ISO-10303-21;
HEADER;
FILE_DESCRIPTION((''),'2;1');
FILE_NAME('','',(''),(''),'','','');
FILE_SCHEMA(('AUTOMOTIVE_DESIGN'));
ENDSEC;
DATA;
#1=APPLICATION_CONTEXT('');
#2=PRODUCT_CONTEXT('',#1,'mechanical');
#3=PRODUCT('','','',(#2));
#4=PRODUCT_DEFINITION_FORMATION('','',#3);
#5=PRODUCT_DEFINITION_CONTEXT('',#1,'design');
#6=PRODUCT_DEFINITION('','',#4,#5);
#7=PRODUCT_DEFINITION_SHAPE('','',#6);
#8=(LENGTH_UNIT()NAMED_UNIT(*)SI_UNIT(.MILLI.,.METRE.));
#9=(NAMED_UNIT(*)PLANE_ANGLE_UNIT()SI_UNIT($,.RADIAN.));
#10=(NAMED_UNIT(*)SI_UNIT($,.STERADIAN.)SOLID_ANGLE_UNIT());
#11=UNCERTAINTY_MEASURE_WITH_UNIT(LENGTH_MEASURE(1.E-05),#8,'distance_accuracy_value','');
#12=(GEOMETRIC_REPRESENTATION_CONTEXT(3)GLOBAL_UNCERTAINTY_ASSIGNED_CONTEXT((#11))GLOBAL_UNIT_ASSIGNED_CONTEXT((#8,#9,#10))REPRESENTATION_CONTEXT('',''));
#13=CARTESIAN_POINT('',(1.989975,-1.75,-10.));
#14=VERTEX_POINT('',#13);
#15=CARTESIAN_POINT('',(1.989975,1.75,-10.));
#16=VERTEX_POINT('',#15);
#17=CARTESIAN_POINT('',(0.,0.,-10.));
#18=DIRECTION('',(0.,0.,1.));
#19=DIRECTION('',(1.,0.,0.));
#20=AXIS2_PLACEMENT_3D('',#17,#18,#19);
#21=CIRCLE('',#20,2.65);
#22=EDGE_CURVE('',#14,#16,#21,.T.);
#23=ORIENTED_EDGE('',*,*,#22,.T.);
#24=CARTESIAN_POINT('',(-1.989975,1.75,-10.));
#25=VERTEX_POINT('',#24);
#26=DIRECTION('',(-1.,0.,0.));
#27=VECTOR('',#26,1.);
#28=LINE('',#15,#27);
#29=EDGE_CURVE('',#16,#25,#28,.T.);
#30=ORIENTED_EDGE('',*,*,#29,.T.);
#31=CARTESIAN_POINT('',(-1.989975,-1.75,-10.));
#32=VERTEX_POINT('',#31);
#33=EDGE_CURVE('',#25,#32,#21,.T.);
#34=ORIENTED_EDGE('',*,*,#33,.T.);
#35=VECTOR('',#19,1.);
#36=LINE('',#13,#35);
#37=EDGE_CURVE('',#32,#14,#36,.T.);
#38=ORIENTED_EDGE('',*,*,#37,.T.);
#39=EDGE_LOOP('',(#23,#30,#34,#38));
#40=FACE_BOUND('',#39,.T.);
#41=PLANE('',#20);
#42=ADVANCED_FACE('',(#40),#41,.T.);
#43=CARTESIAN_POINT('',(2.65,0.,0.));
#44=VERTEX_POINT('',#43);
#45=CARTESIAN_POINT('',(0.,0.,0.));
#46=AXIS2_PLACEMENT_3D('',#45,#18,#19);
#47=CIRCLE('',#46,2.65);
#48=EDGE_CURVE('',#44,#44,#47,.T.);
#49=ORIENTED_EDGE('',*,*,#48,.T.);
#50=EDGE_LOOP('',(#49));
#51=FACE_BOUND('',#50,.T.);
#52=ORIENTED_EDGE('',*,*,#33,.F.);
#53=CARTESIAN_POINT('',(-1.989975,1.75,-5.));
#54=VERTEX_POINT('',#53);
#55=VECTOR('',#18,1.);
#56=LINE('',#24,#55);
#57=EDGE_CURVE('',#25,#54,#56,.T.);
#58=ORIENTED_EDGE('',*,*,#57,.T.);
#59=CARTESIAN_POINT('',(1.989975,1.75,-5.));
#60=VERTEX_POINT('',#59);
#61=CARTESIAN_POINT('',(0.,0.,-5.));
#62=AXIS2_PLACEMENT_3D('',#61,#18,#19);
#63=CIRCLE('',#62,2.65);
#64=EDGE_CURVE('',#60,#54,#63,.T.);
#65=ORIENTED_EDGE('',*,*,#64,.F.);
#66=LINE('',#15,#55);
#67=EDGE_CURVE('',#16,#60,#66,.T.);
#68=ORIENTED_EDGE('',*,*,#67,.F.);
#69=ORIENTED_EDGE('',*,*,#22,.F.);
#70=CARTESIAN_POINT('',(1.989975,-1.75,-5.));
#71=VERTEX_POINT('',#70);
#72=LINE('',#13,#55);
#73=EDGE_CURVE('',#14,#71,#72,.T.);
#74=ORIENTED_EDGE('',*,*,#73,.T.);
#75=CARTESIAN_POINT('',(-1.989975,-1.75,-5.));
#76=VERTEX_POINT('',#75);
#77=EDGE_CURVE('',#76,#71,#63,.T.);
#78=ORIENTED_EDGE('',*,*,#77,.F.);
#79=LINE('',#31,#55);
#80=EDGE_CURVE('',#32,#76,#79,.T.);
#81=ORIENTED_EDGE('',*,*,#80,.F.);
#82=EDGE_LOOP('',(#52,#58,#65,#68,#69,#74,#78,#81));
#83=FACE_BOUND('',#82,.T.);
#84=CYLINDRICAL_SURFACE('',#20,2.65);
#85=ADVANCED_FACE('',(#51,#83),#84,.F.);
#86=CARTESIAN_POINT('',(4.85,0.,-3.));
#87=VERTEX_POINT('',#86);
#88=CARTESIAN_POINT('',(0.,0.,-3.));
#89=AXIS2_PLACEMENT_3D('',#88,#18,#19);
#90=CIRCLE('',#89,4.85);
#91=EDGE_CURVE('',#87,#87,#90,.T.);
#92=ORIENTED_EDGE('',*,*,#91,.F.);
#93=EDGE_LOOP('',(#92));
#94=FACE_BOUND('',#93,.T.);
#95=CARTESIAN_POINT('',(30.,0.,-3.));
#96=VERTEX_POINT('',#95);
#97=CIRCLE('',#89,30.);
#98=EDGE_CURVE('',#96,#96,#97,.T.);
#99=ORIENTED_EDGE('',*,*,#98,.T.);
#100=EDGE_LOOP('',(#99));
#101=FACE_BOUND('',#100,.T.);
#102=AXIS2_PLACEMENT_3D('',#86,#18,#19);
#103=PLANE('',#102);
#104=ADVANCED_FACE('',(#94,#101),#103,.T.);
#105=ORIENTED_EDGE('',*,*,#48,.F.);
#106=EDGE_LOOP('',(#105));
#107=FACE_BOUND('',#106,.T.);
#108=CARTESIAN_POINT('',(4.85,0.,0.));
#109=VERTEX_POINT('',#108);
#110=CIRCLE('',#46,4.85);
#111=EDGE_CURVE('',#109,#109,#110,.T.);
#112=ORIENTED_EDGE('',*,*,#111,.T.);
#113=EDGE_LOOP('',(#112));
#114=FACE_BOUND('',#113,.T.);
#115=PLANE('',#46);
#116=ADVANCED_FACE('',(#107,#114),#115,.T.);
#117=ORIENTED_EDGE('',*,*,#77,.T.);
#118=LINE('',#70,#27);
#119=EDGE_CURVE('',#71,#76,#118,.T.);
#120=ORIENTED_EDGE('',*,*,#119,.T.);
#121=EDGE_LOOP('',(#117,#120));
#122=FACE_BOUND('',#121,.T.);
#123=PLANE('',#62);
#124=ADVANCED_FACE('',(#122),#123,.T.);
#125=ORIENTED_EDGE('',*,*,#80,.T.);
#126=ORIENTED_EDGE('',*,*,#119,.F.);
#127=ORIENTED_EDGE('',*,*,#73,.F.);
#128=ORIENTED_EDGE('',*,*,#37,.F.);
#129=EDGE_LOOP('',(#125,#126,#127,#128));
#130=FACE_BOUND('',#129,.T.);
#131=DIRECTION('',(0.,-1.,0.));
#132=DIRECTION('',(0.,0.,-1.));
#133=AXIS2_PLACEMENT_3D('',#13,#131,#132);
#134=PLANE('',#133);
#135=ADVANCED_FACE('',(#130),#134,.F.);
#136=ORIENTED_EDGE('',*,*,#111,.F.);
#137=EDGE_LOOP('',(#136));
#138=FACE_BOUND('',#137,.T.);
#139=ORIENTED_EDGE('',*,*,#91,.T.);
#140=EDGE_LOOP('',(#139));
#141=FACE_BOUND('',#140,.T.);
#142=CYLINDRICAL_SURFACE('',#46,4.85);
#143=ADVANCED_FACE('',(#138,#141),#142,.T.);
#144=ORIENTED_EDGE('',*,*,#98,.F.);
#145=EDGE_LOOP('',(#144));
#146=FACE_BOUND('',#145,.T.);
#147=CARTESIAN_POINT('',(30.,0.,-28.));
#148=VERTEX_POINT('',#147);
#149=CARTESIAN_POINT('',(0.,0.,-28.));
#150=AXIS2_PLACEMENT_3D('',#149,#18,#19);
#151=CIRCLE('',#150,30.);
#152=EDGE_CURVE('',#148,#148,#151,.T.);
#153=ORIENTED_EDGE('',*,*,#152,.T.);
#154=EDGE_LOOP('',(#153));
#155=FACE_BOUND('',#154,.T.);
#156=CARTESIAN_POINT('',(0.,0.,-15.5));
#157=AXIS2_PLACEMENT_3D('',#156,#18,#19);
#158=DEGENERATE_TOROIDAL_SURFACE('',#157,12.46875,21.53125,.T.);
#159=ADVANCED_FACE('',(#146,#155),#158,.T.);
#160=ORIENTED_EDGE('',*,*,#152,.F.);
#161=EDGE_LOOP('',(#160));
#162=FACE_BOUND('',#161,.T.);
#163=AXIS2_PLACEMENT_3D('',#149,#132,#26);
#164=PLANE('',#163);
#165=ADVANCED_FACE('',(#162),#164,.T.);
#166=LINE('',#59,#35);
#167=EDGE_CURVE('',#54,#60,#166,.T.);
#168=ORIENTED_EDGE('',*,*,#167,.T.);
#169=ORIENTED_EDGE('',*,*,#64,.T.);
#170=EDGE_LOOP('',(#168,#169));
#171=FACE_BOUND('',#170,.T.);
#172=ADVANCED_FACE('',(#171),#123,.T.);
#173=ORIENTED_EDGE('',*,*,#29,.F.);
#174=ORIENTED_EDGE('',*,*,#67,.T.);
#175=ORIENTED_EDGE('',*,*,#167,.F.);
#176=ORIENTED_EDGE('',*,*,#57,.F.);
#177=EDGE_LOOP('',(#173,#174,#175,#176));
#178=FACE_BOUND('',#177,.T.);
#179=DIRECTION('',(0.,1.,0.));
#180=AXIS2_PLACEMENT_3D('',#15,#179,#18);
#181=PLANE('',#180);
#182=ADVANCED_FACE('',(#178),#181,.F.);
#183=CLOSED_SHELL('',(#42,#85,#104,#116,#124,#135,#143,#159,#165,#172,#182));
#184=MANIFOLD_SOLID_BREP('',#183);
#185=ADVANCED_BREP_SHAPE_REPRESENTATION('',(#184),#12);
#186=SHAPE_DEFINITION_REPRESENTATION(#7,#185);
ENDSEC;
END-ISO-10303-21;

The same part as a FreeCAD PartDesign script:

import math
import FreeCAD as App
import Part
import Sketcher
from FreeCAD import Vector

doc = App.newDocument("Part")
body = doc.addObject("PartDesign::Body", "Body")

# Sketch on XZ plane
sketch1 = body.newObject("Sketcher::SketchObject", "Sketch")
sketch1.AttachmentSupport = (doc.getObject("XZ_Plane"), [""])
sketch1.MapMode = "FlatFace"
sketch1.addGeometry(Part.LineSegment(Vector(0, -28, 0), Vector(0, 0, 0)), False)
sketch1.addGeometry(Part.LineSegment(Vector(0, 0, 0), Vector(4.8, 0, 0)), False)
sketch1.addGeometry(Part.LineSegment(Vector(4.8, 0, 0), Vector(4.8, -3, 0)), False)
sketch1.addGeometry(Part.LineSegment(Vector(4.8, -3, 0), Vector(30, -3, 0)), False)
sketch1.addGeometry(Part.ArcOfCircle(Part.Circle(Vector(12.5, -15.5, 0), Vector(0, 0, 1), 21.5), math.radians(-35), math.radians(35)), False)
sketch1.addGeometry(Part.LineSegment(Vector(30, -28, 0), Vector(0, -28, 0)), False)
sketch1.addConstraint(Sketcher.Constraint("Coincident", 0, 2, 1, 1))
sketch1.addConstraint(Sketcher.Constraint("Coincident", 1, 2, 2, 1))
sketch1.addConstraint(Sketcher.Constraint("Coincident", 2, 2, 3, 1))
sketch1.addConstraint(Sketcher.Constraint("Coincident", 3, 2, 4, 2))
sketch1.addConstraint(Sketcher.Constraint("Coincident", 4, 1, 5, 1))
sketch1.addConstraint(Sketcher.Constraint("Coincident", 5, 2, 0, 1))
sketch1.addConstraint(Sketcher.Constraint("Vertical", 0))
sketch1.addConstraint(Sketcher.Constraint("Horizontal", 1))
sketch1.addConstraint(Sketcher.Constraint("Vertical", 2))
sketch1.addConstraint(Sketcher.Constraint("Horizontal", 3))
sketch1.addConstraint(Sketcher.Constraint("Horizontal", 5))
sketch1.addConstraint(Sketcher.Constraint("Coincident", 0, 2, -1, 1))
sketch1.addConstraint(Sketcher.Constraint("Vertical", 3, 2, 4, 1))
sketch1.addConstraint(Sketcher.Constraint("DistanceX", 5, 2, 5, 1, 30.0))
sketch1.addConstraint(Sketcher.Constraint("DistanceY", 0, 1, 0, 2, 28.0))
sketch1.addConstraint(Sketcher.Constraint("DistanceY", 2, 2, 2, 1, 3.0))
sketch1.addConstraint(Sketcher.Constraint("DistanceX", 1, 1, 1, 2, 4.85))
sketch1.addConstraint(Sketcher.Constraint("Radius", 4, 21.53125))
revolution = body.newObject("PartDesign::Revolution", "Revolution")
revolution.Profile = sketch1
revolution.ReferenceAxis = (sketch1, ["V_Axis"])
revolution.Angle = 360

# Sketch on XY plane
sketch2 = body.newObject("Sketcher::SketchObject", "Sketch001")
sketch2.AttachmentSupport = (doc.getObject("XY_Plane"), [""])
sketch2.MapMode = "FlatFace"
sketch2.addGeometry(Part.LineSegment(Vector(2, 1.8, 0), Vector(-2, 1.8, 0)), False)
sketch2.addGeometry(Part.ArcOfCircle(Part.Circle(Vector(0, 0, 0), Vector(0, 0, 1), 2.6), math.radians(139), math.radians(221)), False)
sketch2.addGeometry(Part.LineSegment(Vector(-2, -1.8, 0), Vector(2, -1.8, 0)), False)
sketch2.addGeometry(Part.ArcOfCircle(Part.Circle(Vector(0, 0, 0), Vector(0, 0, 1), 2.6), math.radians(-41), math.radians(41)), False)
sketch2.addConstraint(Sketcher.Constraint("Coincident", 0, 2, 1, 1))
sketch2.addConstraint(Sketcher.Constraint("Coincident", 1, 2, 2, 1))
sketch2.addConstraint(Sketcher.Constraint("Coincident", 2, 2, 3, 1))
sketch2.addConstraint(Sketcher.Constraint("Coincident", 3, 2, 0, 1))
sketch2.addConstraint(Sketcher.Constraint("Horizontal", 0))
sketch2.addConstraint(Sketcher.Constraint("Horizontal", 2))
sketch2.addConstraint(Sketcher.Constraint("Coincident", 1, 3, -1, 1))
sketch2.addConstraint(Sketcher.Constraint("Coincident", 3, 3, -1, 1))
sketch2.addConstraint(Sketcher.Constraint("Equal", 1, 3))
sketch2.addConstraint(Sketcher.Constraint("Vertical", 0, 2, 1, 2))
sketch2.addConstraint(Sketcher.Constraint("Radius", 1, 2.65))
sketch2.addConstraint(Sketcher.Constraint("DistanceY", 1, 2, 0, 2, 3.5))
pocket1 = body.newObject("PartDesign::Pocket", "Pocket")
pocket1.Profile = sketch2
pocket1.Length = 10

# Sketch on XY plane
sketch3 = body.newObject("Sketcher::SketchObject", "Sketch002")
sketch3.AttachmentSupport = (doc.getObject("XY_Plane"), [""])
sketch3.MapMode = "FlatFace"
sketch3.addGeometry(Part.Circle(Vector(0, 0, 0), Vector(0, 0, 1), 2.6), False)
sketch3.addConstraint(Sketcher.Constraint("Coincident", 0, 3, -1, 1))
sketch3.addConstraint(Sketcher.Constraint("Diameter", 0, 5.3))
pocket2 = body.newObject("PartDesign::Pocket", "Pocket001")
pocket2.Profile = sketch3
pocket2.Length = 5

doc.recompute()
